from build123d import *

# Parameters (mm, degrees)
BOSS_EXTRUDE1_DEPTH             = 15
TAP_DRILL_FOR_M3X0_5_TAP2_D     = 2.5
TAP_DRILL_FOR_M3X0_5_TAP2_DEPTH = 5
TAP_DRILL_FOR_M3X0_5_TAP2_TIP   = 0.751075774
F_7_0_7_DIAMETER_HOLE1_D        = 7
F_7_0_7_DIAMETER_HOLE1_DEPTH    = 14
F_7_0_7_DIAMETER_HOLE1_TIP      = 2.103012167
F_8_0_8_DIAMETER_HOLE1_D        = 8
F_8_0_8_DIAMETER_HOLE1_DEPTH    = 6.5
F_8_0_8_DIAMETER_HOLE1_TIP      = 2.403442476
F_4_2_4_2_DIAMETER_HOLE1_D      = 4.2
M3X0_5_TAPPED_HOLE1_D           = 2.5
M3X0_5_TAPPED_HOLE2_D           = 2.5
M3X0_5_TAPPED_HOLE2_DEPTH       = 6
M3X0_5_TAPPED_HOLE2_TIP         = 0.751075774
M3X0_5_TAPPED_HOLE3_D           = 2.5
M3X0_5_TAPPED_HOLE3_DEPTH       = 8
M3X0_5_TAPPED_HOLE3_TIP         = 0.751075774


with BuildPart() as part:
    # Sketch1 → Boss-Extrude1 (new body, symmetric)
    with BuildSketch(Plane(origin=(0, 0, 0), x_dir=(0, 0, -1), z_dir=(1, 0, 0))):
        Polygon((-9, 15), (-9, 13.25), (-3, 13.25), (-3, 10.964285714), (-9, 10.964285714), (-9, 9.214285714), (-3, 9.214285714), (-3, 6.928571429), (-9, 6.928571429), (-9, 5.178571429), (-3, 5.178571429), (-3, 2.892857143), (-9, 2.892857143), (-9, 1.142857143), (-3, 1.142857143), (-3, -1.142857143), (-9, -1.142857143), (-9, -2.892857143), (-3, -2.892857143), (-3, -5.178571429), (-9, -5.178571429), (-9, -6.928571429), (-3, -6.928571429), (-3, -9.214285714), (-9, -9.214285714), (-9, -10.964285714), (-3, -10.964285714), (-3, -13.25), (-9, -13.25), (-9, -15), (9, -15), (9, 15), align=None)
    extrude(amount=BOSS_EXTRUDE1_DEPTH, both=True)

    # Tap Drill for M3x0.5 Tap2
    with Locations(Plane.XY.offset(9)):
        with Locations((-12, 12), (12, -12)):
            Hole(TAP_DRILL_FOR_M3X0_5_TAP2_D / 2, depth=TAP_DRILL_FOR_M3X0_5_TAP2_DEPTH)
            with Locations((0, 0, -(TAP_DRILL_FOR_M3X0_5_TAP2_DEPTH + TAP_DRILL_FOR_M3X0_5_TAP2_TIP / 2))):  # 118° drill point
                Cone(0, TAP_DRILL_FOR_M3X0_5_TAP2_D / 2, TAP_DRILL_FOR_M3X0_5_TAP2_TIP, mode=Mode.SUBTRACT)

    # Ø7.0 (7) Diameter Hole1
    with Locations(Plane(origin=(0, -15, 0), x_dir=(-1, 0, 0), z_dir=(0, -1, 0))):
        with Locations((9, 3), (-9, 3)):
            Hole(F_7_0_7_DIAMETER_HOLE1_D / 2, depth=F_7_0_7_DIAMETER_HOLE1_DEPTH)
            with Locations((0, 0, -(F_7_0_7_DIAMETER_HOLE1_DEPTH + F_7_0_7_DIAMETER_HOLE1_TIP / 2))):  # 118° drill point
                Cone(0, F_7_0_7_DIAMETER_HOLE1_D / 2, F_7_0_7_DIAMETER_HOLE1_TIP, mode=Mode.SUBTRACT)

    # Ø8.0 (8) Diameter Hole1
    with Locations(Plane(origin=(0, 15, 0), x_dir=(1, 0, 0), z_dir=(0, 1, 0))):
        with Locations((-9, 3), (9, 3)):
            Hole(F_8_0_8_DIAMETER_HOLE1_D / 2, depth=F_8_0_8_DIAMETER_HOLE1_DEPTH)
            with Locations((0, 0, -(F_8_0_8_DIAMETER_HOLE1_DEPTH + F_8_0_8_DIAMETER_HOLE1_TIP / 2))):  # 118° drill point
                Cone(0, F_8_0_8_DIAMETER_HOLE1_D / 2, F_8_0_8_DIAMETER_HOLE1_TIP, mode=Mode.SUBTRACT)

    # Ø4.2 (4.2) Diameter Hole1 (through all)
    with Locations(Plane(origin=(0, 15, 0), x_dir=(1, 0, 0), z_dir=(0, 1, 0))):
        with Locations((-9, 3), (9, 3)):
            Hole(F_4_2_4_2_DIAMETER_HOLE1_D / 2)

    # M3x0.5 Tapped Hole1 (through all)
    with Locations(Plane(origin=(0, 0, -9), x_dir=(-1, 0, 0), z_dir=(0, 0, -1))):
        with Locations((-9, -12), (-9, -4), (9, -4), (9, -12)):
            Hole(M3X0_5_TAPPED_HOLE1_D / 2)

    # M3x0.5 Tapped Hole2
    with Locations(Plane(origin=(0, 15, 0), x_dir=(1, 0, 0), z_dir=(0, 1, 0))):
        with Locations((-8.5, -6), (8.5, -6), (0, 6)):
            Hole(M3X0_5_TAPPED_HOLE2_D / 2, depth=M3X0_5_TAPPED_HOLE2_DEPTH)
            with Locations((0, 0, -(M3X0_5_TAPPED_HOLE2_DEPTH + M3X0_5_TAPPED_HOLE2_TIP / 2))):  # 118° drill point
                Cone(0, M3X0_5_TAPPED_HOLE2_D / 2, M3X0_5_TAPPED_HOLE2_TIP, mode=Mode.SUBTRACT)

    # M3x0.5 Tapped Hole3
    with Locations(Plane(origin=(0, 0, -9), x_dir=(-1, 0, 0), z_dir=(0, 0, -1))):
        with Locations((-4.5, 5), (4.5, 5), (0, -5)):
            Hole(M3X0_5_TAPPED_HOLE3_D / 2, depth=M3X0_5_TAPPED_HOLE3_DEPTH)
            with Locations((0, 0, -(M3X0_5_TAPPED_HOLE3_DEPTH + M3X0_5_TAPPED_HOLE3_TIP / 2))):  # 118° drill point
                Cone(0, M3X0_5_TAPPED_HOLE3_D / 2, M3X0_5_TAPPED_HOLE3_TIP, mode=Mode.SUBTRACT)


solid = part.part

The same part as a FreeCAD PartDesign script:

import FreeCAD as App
import Part
import Sketcher


def add_polygon(sketch, points):
    """Adds a closed chain of lines whose ends are joined by coincident constraints."""
    first, n = sketch.GeometryCount, len(points)
    for a, b in zip(points, points[1:] + points[:1]):
        sketch.addGeometry(Part.LineSegment(App.Vector(*a, 0), App.Vector(*b, 0)), False)
    for i in range(n):
        sketch.addConstraint(Sketcher.Constraint("Coincident", first + i, 2, first + (i + 1) % n, 1))

doc = App.newDocument("Part")
body = doc.addObject("PartDesign::Body", "Body")

sketch1 = body.newObject("Sketcher::SketchObject", "Sketch")
sketch1.AttachmentSupport = (doc.getObject("YZ_Plane"), [""])
sketch1.MapMode = "FlatFace"
add_polygon(sketch1, [(15, 9), (13.25, 9), (13.25, 3), (10.964286, 3), (10.964286, 9), (9.214286, 9), (9.214286, 3), (6.928571, 3), (6.928571, 9), (5.178571, 9), (5.178571, 3), (2.892857, 3), (2.892857, 9), (1.142857, 9), (1.142857, 3), (-1.142857, 3), (-1.142857, 9), (-2.892857, 9), (-2.892857, 3), (-5.178571, 3), (-5.178571, 9), (-6.928571, 9), (-6.928571, 3), (-9.214286, 3), (-9.214286, 9), (-10.964286, 9), (-10.964286, 3), (-13.25, 3), (-13.25, 9), (-15, 9), (-15, -9), (15, -9)])
sketch1.addConstraint(Sketcher.Constraint("Horizontal", 0))
sketch1.addConstraint(Sketcher.Constraint("Vertical", 1))
sketch1.addConstraint(Sketcher.Constraint("Horizontal", 2))
sketch1.addConstraint(Sketcher.Constraint("Vertical", 3))
sketch1.addConstraint(Sketcher.Constraint("Horizontal", 4))
sketch1.addConstraint(Sketcher.Constraint("Vertical", 5))
sketch1.addConstraint(Sketcher.Constraint("Horizontal", 6))
sketch1.addConstraint(Sketcher.Constraint("Vertical", 7))
sketch1.addConstraint(Sketcher.Constraint("Horizontal", 8))
sketch1.addConstraint(Sketcher.Constraint("Vertical", 9))
sketch1.addConstraint(Sketcher.Constraint("Horizontal", 10))
sketch1.addConstraint(Sketcher.Constraint("Vertical", 11))
sketch1.addConstraint(Sketcher.Constraint("Horizontal", 12))
sketch1.addConstraint(Sketcher.Constraint("Vertical", 13))
sketch1.addConstraint(Sketcher.Constraint("Horizontal", 14))
sketch1.addConstraint(Sketcher.Constraint("Vertical", 15))
sketch1.addConstraint(Sketcher.Constraint("Horizontal", 16))
sketch1.addConstraint(Sketcher.Constraint("Vertical", 17))
sketch1.addConstraint(Sketcher.Constraint("Horizontal", 18))
sketch1.addConstraint(Sketcher.Constraint("Vertical", 19))
sketch1.addConstraint(Sketcher.Constraint("Horizontal", 20))
sketch1.addConstraint(Sketcher.Constraint("Vertical", 21))
sketch1.addConstraint(Sketcher.Constraint("Horizontal", 22))
sketch1.addConstraint(Sketcher.Constraint("Vertical", 23))
sketch1.addConstraint(Sketcher.Constraint("Horizontal", 24))
sketch1.addConstraint(Sketcher.Constraint("Vertical", 25))
sketch1.addConstraint(Sketcher.Constraint("Horizontal", 26))
sketch1.addConstraint(Sketcher.Constraint("Vertical", 27))
sketch1.addConstraint(Sketcher.Constraint("Horizontal", 28))
sketch1.addConstraint(Sketcher.Constraint("Vertical", 29))
sketch1.addConstraint(Sketcher.Constraint("Horizontal", 30))
sketch1.addConstraint(Sketcher.Constraint("Vertical", 31))
sketch1.addConstraint(Sketcher.Constraint("Symmetric", 28, 2, 30, 2, -1, 1))
sketch1.addConstraint(Sketcher.Constraint("Symmetric", 12, 2, 15, 2, -2))
sketch1.addConstraint(Sketcher.Constraint("Symmetric", 10, 2, 17, 2, -2))
sketch1.addConstraint(Sketcher.Constraint("Symmetric", 8, 2, 19, 2, -2))
sketch1.addConstraint(Sketcher.Constraint("Symmetric", 6, 2, 21, 2, -2))
sketch1.addConstraint(Sketcher.Constraint("Symmetric", 4, 2, 23, 2, -2))
sketch1.addConstraint(Sketcher.Constraint("Symmetric", 2, 2, 25, 2, -2))
sketch1.addConstraint(Sketcher.Constraint("Symmetric", 0, 2, 27, 2, -2))
sketch1.addConstraint(Sketcher.Constraint("Horizontal", 0, 2, 3, 2))
sketch1.addConstraint(Sketcher.Constraint("Horizontal", 2, 2, 5, 2))
sketch1.addConstraint(Sketcher.Constraint("Horizontal", 4, 2, 7, 2))
sketch1.addConstraint(Sketcher.Constraint("Horizontal", 6, 2, 9, 2))
sketch1.addConstraint(Sketcher.Constraint("Horizontal", 8, 2, 11, 2))
sketch1.addConstraint(Sketcher.Constraint("Horizontal", 10, 2, 13, 2))
sketch1.addConstraint(Sketcher.Constraint("Equal", 0, 4))
sketch1.addConstraint(Sketcher.Constraint("Equal", 2, 6))
sketch1.addConstraint(Sketcher.Constraint("Equal", 4, 8))
sketch1.addConstraint(Sketcher.Constraint("Equal", 6, 10))
sketch1.addConstraint(Sketcher.Constraint("Equal", 8, 12))
sketch1.addConstraint(Sketcher.Constraint("Equal", 10, 14))
sketch1.addConstraint(Sketcher.Constraint("DistanceX", 30, 1, 30, 2, 30.0))
sketch1.addConstraint(Sketcher.Constraint("DistanceY", 1, 2, 1, 1, 6.0))
sketch1.addConstraint(Sketcher.Constraint("DistanceY", 29, 2, 29, 1, 18.0))
sketch1.addConstraint(Sketcher.Constraint("DistanceX", 0, 2, 0, 1, 1.75))
pad1 = body.newObject("PartDesign::Pad", "Pad")
pad1.Profile = sketch1
pad1.Length = 30
pad1.Midplane = True

sketch2 = body.newObject("Sketcher::SketchObject", "Sketch001")
sketch2.AttachmentSupport = (doc.getObject("XY_Plane"), [""])
sketch2.MapMode = "FlatFace"
sketch2.AttachmentOffset = App.Placement(App.Vector(0, 0, 9), App.Rotation())
sketch2.addGeometry(Part.Circle(App.Vector(-12, 12, 0), App.Vector(0, 0, 1), 1.25), False)
sketch2.addGeometry(Part.Circle(App.Vector(12, -12, 0), App.Vector(0, 0, 1), 1.25), False)
sketch2.addConstraint(Sketcher.Constraint("Equal", 0, 1))
sketch2.addConstraint(Sketcher.Constraint("Symmetric", 0, 3, 1, 3, -1, 1))
sketch2.addConstraint(Sketcher.Constraint("Diameter", 0, 2.5))
sketch2.addConstraint(Sketcher.Constraint("DistanceX", 0, 3, -1, 1, 12.0))
sketch2.addConstraint(Sketcher.Constraint("DistanceY", -1, 1, 0, 3, 12.0))
doc.recompute()
hole = body.newObject("PartDesign::Hole", "Hole")
hole.Profile = sketch2
hole.ThreadType = "None"
hole.Diameter = 2.5
hole.DepthType = "Dimension"
hole.Depth = 5
hole.DrillPoint = "Angled"
hole.DrillPointAngle = 118

sketch3 = body.newObject("Sketcher::SketchObject", "Sketch002")
sketch3.AttachmentSupport = (doc.getObject("XZ_Plane"), [""])
sketch3.MapMode = "FlatFace"
sketch3.AttachmentOffset = App.Placement(App.Vector(0, 0, 15), App.Rotation())
sketch3.addGeometry(Part.Circle(App.Vector(-9, -3, 0), App.Vector(0, 0, 1), 3.5), False)
sketch3.addGeometry(Part.Circle(App.Vector(9, -3, 0), App.Vector(0, 0, 1), 3.5), False)
sketch3.addConstraint(Sketcher.Constraint("Equal", 0, 1))
sketch3.addConstraint(Sketcher.Constraint("Symmetric", 0, 3, 1, 3, -2))
sketch3.addConstraint(Sketcher.Constraint("Diameter", 0, 7.0))
sketch3.addConstraint(Sketcher.Constraint("DistanceX", 0, 3, -1, 1, 9.0))
sketch3.addConstraint(Sketcher.Constraint("DistanceY", 0, 3, -1, 1, 3.0))
doc.recompute()
hole2 = body.newObject("PartDesign::Hole", "Hole001")
hole2.Profile = sketch3
hole2.ThreadType = "None"
hole2.Diameter = 7
hole2.DepthType = "Dimension"
hole2.Depth = 14
hole2.DrillPoint = "Angled"
hole2.DrillPointAngle = 118

sketch4 = body.newObject("Sketcher::SketchObject", "Sketch003")
sketch4.AttachmentSupport = (doc.getObject("XZ_Plane"), [""])
sketch4.MapMode = "FlatFace"
sketch4.AttachmentOffset = App.Placement(App.Vector(0, 0, -15), App.Rotation())
sketch4.addGeometry(Part.Circle(App.Vector(-9, -3, 0), App.Vector(0, 0, 1), 4), False)
sketch4.addGeometry(Part.Circle(App.Vector(9, -3, 0), App.Vector(0, 0, 1), 4), False)
sketch4.addConstraint(Sketcher.Constraint("Equal", 0, 1))
sketch4.addConstraint(Sketcher.Constraint("Symmetric", 0, 3, 1, 3, -2))
sketch4.addConstraint(Sketcher.Constraint("Diameter", 0, 8.0))
sketch4.addConstraint(Sketcher.Constraint("DistanceX", 0, 3, -1, 1, 9.0))
sketch4.addConstraint(Sketcher.Constraint("DistanceY", 0, 3, -1, 1, 3.0))
doc.recompute()
hole3 = body.newObject("PartDesign::Hole", "Hole002")
hole3.Profile = sketch4
hole3.ThreadType = "None"
hole3.Diameter = 8
hole3.DepthType = "Dimension"
hole3.Depth = 6.5
hole3.DrillPoint = "Angled"
hole3.DrillPointAngle = 118
hole3.Reversed = True

sketch5 = body.newObject("Sketcher::SketchObject", "Sketch004")
sketch5.AttachmentSupport = (doc.getObject("XZ_Plane"), [""])
sketch5.MapMode = "FlatFace"
sketch5.AttachmentOffset = App.Placement(App.Vector(0, 0, -15), App.Rotation())
sketch5.addGeometry(Part.Circle(App.Vector(-9, -3, 0), App.Vector(0, 0, 1), 2.1), False)
sketch5.addGeometry(Part.Circle(App.Vector(9, -3, 0), App.Vector(0, 0, 1), 2.1), False)
sketch5.addConstraint(Sketcher.Constraint("Equal", 0, 1))
sketch5.addConstraint(Sketcher.Constraint("Symmetric", 0, 3, 1, 3, -2))
sketch5.addConstraint(Sketcher.Constraint("Diameter", 0, 4.2))
sketch5.addConstraint(Sketcher.Constraint("DistanceX", 0, 3, -1, 1, 9.0))
sketch5.addConstraint(Sketcher.Constraint("DistanceY", 0, 3, -1, 1, 3.0))
doc.recompute()
hole4 = body.newObject("PartDesign::Hole", "Hole003")
hole4.Profile = sketch5
hole4.ThreadType = "None"
hole4.Diameter = 4.2
hole4.DepthType = "ThroughAll"
hole4.Reversed = True

sketch6 = body.newObject("Sketcher::SketchObject", "Sketch005")
sketch6.AttachmentSupport = (doc.getObject("XY_Plane"), [""])
sketch6.MapMode = "FlatFace"
sketch6.AttachmentOffset = App.Placement(App.Vector(0, 0, -9), App.Rotation())
sketch6.addGeometry(Part.Circle(App.Vector(9, -12, 0), App.Vector(0, 0, 1), 1.25), False)
sketch6.addGeometry(Part.Circle(App.Vector(9, -4, 0), App.Vector(0, 0, 1), 1.25), False)
sketch6.addGeometry(Part.Circle(App.Vector(-9, -4, 0), App.Vector(0, 0, 1), 1.25), False)
sketch6.addGeometry(Part.Circle(App.Vector(-9, -12, 0), App.Vector(0, 0, 1), 1.25), False)
sketch6.addConstraint(Sketcher.Constraint("Equal", 0, 1))
sketch6.addConstraint(Sketcher.Constraint("Equal", 1, 2))
sketch6.addConstraint(Sketcher.Constraint("Equal", 2, 3))
sketch6.addConstraint(Sketcher.Constraint("Symmetric", 1, 3, 2, 3, -2))
sketch6.addConstraint(Sketcher.Constraint("Symmetric", 0, 3, 3, 3, -2))
sketch6.addConstraint(Sketcher.Constraint("Vertical", 0, 3, 1, 3))
sketch6.addConstraint(Sketcher.Constraint("Diameter", 0, 2.5))
sketch6.addConstraint(Sketcher.Constraint("DistanceX", -1, 1, 0, 3, 9.0))
sketch6.addConstraint(Sketcher.Constraint("DistanceY", 0, 3, -1, 1, 12.0))
sketch6.addConstraint(Sketcher.Constraint("DistanceY", 1, 3, -1, 1, 4.0))
doc.recompute()
hole5 = body.newObject("PartDesign::Hole", "Hole004")
hole5.Profile = sketch6
hole5.ThreadType = "None"
hole5.Diameter = 2.5
hole5.DepthType = "ThroughAll"
hole5.Reversed = True

sketch7 = body.newObject("Sketcher::SketchObject", "Sketch006")
sketch7.AttachmentSupport = (doc.getObject("XZ_Plane"), [""])
sketch7.MapMode = "FlatFace"
sketch7.AttachmentOffset = App.Placement(App.Vector(0, 0, -15), App.Rotation())
sketch7.addGeometry(Part.Circle(App.Vector(-8.5, 6, 0), App.Vector(0, 0, 1), 1.25), False)
sketch7.addGeometry(Part.Circle(App.Vector(8.5, 6, 0), App.Vector(0, 0, 1), 1.25), False)
sketch7.addGeometry(Part.Circle(App.Vector(0, -6, 0), App.Vector(0, 0, 1), 1.25), False)
sketch7.addConstraint(Sketcher.Constraint("Equal", 0, 1))
sketch7.addConstraint(Sketcher.Constraint("Equal", 1, 2))
sketch7.addConstraint(Sketcher.Constraint("Symmetric", 0, 3, 1, 3, -2))
sketch7.addConstraint(Sketcher.Constraint("PointOnObject", 2, 3, -2))
sketch7.addConstraint(Sketcher.Constraint("Diameter", 0, 2.5))
sketch7.addConstraint(Sketcher.Constraint("DistanceY", -1, 1, 0, 3, 6.0))
sketch7.addConstraint(Sketcher.Constraint("DistanceY", 2, 3, -1, 1, 6.0))
sketch7.addConstraint(Sketcher.Constraint("DistanceX", 0, 3, 1, 3, 17.0))
doc.recompute()
hole6 = body.newObject("PartDesign::Hole", "Hole005")
hole6.Profile = sketch7
hole6.ThreadType = "None"
hole6.Diameter = 2.5
hole6.DepthType = "Dimension"
hole6.Depth = 6
hole6.DrillPoint = "Angled"
hole6.DrillPointAngle = 118
hole6.Reversed = True

sketch8 = body.newObject("Sketcher::SketchObject", "Sketch007")
sketch8.AttachmentSupport = (doc.getObject("XY_Plane"), [""])
sketch8.MapMode = "FlatFace"
sketch8.AttachmentOffset = App.Placement(App.Vector(0, 0, -9), App.Rotation())
sketch8.addGeometry(Part.Circle(App.Vector(4.5, 5, 0), App.Vector(0, 0, 1), 1.25), False)
sketch8.addGeometry(Part.Circle(App.Vector(-4.5, 5, 0), App.Vector(0, 0, 1), 1.25), False)
sketch8.addGeometry(Part.Circle(App.Vector(0, -5, 0), App.Vector(0, 0, 1), 1.25), False)
sketch8.addConstraint(Sketcher.Constraint("Equal", 0, 1))
sketch8.addConstraint(Sketcher.Constraint("Equal", 1, 2))
sketch8.addConstraint(Sketcher.Constraint("Symmetric", 0, 3, 1, 3, -2))
sketch8.addConstraint(Sketcher.Constraint("PointOnObject", 2, 3, -2))
sketch8.addConstraint(Sketcher.Constraint("Diameter", 0, 2.5))
sketch8.addConstraint(Sketcher.Constraint("DistanceY", -1, 1, 0, 3, 5.0))
sketch8.addConstraint(Sketcher.Constraint("DistanceY", 2, 3, -1, 1, 5.0))
sketch8.addConstraint(Sketcher.Constraint("DistanceX", 1, 3, 0, 3, 9.0))
doc.recompute()
hole7 = body.newObject("PartDesign::Hole", "Hole006")
hole7.Profile = sketch8
hole7.ThreadType = "None"
hole7.Diameter = 2.5
hole7.DepthType = "Dimension"
hole7.Depth = 8
hole7.DrillPoint = "Angled"
hole7.DrillPointAngle = 118
hole7.Reversed = True

doc.recompute()
